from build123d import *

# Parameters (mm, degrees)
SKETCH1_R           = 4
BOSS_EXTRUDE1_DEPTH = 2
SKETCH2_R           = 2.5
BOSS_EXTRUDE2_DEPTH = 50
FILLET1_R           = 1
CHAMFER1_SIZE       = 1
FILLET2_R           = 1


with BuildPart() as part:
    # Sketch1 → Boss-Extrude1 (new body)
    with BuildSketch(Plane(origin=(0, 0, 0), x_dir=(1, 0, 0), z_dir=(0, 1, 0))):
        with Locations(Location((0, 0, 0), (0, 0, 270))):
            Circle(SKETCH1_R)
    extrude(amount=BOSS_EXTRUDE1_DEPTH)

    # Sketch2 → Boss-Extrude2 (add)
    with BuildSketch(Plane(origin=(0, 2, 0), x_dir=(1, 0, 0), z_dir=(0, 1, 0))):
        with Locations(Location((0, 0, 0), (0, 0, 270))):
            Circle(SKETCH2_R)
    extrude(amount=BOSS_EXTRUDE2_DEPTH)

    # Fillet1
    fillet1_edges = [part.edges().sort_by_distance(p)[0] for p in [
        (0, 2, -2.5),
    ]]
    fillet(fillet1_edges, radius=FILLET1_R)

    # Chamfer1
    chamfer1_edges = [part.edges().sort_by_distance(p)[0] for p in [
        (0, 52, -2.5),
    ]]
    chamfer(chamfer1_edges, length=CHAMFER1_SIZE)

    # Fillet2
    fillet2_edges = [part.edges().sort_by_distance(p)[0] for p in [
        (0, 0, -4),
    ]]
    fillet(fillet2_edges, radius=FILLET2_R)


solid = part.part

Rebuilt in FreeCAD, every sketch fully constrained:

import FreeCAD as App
import Part
import Sketcher

V = App.Vector


def edges_at(feature, points):
    """Names of the edges that pass closest to the given points."""
    edges = feature.Shape.Edges
    near = lambda p: min(range(len(edges)), key=lambda i: edges[i].distToShape(Part.Vertex(*p))[0])
    return sorted({f"Edge{near(p) + 1}" for p in points})

doc = App.newDocument("Part")
body = doc.addObject("PartDesign::Body", "Body")

# Sketch on XZ plane
sketch1 = body.newObject("Sketcher::SketchObject", "Sketch")
sketch1.AttachmentSupport = (doc.getObject("XZ_Plane"), [""])
sketch1.MapMode = "FlatFace"
sketch1.addGeometry(Part.Circle(V(0, 0, 0), V(0, 0, 1), 4), False)
sketch1.addConstraint([
    Sketcher.Constraint("Coincident", 0, 3, -1, 1),
    Sketcher.Constraint("Diameter", 0, 8.0),
])
pad1 = body.newObject("PartDesign::Pad", "Pad")
pad1.Profile = sketch1
pad1.Length = 2
pad1.Reversed = True

# Sketch on XZ plane
sketch2 = body.newObject("Sketcher::SketchObject", "Sketch001")
sketch2.AttachmentSupport = (doc.getObject("XZ_Plane"), [""])
sketch2.MapMode = "FlatFace"
sketch2.AttachmentOffset = App.Placement(V(0, 0, -2), App.Rotation())
sketch2.addGeometry(Part.Circle(V(0, 0, 0), V(0, 0, 1), 2.5), False)
sketch2.addConstraint([
    Sketcher.Constraint("Coincident", 0, 3, -1, 1),
    Sketcher.Constraint("Diameter", 0, 5.0),
])
pad2 = body.newObject("PartDesign::Pad", "Pad001")
pad2.Profile = sketch2
pad2.Length = 50
pad2.Reversed = True
doc.recompute()

fillet = body.newObject("PartDesign::Fillet", "Fillet")
fillet.Base = (pad2, edges_at(pad2, [(0, 2, -2.5)]))
fillet.Radius = 1
doc.recompute()

chamfer = body.newObject("PartDesign::Chamfer", "Chamfer")
chamfer.Base = (fillet, edges_at(fillet, [(0, 52, -2.5)]))
chamfer.Size = 1
doc.recompute()

fillet2 = body.newObject("PartDesign::Fillet", "Fillet001")
fillet2.Base = (chamfer, edges_at(chamfer, [(0, 0, -4)]))
fillet2.Radius = 1

doc.recompute()
